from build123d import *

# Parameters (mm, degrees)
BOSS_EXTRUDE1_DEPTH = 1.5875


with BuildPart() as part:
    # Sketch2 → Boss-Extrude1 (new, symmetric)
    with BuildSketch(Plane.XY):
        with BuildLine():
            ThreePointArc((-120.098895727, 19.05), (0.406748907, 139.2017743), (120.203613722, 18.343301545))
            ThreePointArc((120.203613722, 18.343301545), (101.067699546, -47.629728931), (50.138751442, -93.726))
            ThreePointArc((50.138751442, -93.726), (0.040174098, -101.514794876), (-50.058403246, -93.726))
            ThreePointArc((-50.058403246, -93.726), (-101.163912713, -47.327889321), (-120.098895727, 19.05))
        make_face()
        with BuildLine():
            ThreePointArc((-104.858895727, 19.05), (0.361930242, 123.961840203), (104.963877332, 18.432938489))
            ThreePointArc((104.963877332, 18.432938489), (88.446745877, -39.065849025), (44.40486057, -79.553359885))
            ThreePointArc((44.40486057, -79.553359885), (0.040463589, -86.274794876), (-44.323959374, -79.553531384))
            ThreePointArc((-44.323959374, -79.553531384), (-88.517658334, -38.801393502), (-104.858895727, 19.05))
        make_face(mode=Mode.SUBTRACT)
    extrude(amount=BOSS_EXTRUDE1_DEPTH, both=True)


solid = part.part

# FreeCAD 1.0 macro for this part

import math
import FreeCAD as App
import Part
import Sketcher

V = App.Vector
Q = App.Units.Quantity

doc = App.newDocument("Part")
params = doc.addObject("Spreadsheet::Sheet", "Params")
for row, (alias, value) in enumerate([
    ("pad1_length", "0.125 in"),
], start=1):
    params.set(f"A{row}", alias)
    params.set(f"B{row}", "=" + value)
    params.setAlias(f"B{row}", alias)

body = doc.addObject("PartDesign::Body", "Body")

# Sketch on XY plane
sketch1 = body.newObject("Sketcher::SketchObject", "Sketch")
sketch1.AttachmentSupport = (doc.getObject("XY_Plane"), [""])
sketch1.MapMode = "FlatFace"
sketch1.addGeometry([
    Part.ArcOfCircle(Part.Circle(V(0, 19, 0), V(0, 0, 1), 120), math.radians(0), math.radians(180)),  # 0
    Part.ArcOfCircle(Part.Circle(V(6, 19, 0), V(0, 0, 1), 126), math.radians(-180), math.radians(-116)),  # 1
    Part.ArcOfCircle(Part.Circle(V(0, 63, 0), V(0, 0, 1), 165), math.radians(-108), math.radians(-72)),  # 2
    Part.ArcOfCircle(Part.Circle(V(-6, 19, 0), V(0, 0, 1), 126), math.radians(-64), math.radians(0)),  # 3
    Part.ArcOfCircle(Part.Circle(V(0, 19, 0), V(0, 0, 1), 105), math.radians(0), math.radians(180)),  # 4
    Part.ArcOfCircle(Part.Circle(V(-6, 19, 0), V(0, 0, 1), 111), math.radians(-63), math.radians(0)),  # 5
    Part.ArcOfCircle(Part.Circle(V(0, 63, 0), V(0, 0, 1), 150), math.radians(-107), math.radians(-73)),  # 6
    Part.ArcOfCircle(Part.Circle(V(6, 19, 0), V(0, 0, 1), 111), math.radians(-180), math.radians(-117)),  # 7
], False)
sketch1.addConstraint([
    Sketcher.Constraint("Tangent", 0, 2, 1, 1),
    Sketcher.Constraint("Coincident", 1, 2, 2, 1),
    Sketcher.Constraint("Coincident", 2, 2, 3, 1),
    Sketcher.Constraint("Tangent", 3, 2, 0, 1),
    Sketcher.Constraint("Tangent", 4, 1, 5, 2),
    Sketcher.Constraint("Coincident", 5, 1, 6, 2),
    Sketcher.Constraint("Coincident", 6, 1, 7, 2),
    Sketcher.Constraint("Tangent", 7, 1, 4, 2),
    Sketcher.Constraint("Coincident", 4, 3, 0, 3),
    Sketcher.Constraint("Coincident", 5, 3, 3, 3),
    Sketcher.Constraint("Coincident", 6, 3, 2, 3),
    Sketcher.Constraint("Coincident", 7, 3, 1, 3),
    Sketcher.Constraint("Horizontal", 0, 3, 1, 3),
    Sketcher.Constraint("Horizontal", 1, 2, 2, 2),
    Sketcher.Constraint("DistanceY", -1, 1, 2, 3, Q("2.5 in")),
    Sketcher.Constraint("DistanceX", 0, 2, 7, 1, Q("0.6 in")),
    Sketcher.Constraint("DistanceY", -1, 1, 0, 3, Q("0.75 in")),
    Sketcher.Constraint("DistanceY", 1, 2, -1, 1, Q("3.69 in")),
    Sketcher.Constraint("Radius", 0, 120.152294),
    Sketcher.Constraint("Radius", 1, 125.813627),
    Sketcher.Constraint("Radius", 2, 165.014795),
    Sketcher.Constraint("Radius", 3, 125.846414),
    Sketcher.Constraint("Radius", 6, 149.774795),
    Sketcher.Constraint("DistanceX", -1, 1, 0, 3, 0.053398),
])
pad1 = body.newObject("PartDesign::Pad", "Pad")
pad1.Profile = sketch1
pad1.setExpression("Length", "Params.pad1_length")
pad1.Midplane = True

doc.recompute()
